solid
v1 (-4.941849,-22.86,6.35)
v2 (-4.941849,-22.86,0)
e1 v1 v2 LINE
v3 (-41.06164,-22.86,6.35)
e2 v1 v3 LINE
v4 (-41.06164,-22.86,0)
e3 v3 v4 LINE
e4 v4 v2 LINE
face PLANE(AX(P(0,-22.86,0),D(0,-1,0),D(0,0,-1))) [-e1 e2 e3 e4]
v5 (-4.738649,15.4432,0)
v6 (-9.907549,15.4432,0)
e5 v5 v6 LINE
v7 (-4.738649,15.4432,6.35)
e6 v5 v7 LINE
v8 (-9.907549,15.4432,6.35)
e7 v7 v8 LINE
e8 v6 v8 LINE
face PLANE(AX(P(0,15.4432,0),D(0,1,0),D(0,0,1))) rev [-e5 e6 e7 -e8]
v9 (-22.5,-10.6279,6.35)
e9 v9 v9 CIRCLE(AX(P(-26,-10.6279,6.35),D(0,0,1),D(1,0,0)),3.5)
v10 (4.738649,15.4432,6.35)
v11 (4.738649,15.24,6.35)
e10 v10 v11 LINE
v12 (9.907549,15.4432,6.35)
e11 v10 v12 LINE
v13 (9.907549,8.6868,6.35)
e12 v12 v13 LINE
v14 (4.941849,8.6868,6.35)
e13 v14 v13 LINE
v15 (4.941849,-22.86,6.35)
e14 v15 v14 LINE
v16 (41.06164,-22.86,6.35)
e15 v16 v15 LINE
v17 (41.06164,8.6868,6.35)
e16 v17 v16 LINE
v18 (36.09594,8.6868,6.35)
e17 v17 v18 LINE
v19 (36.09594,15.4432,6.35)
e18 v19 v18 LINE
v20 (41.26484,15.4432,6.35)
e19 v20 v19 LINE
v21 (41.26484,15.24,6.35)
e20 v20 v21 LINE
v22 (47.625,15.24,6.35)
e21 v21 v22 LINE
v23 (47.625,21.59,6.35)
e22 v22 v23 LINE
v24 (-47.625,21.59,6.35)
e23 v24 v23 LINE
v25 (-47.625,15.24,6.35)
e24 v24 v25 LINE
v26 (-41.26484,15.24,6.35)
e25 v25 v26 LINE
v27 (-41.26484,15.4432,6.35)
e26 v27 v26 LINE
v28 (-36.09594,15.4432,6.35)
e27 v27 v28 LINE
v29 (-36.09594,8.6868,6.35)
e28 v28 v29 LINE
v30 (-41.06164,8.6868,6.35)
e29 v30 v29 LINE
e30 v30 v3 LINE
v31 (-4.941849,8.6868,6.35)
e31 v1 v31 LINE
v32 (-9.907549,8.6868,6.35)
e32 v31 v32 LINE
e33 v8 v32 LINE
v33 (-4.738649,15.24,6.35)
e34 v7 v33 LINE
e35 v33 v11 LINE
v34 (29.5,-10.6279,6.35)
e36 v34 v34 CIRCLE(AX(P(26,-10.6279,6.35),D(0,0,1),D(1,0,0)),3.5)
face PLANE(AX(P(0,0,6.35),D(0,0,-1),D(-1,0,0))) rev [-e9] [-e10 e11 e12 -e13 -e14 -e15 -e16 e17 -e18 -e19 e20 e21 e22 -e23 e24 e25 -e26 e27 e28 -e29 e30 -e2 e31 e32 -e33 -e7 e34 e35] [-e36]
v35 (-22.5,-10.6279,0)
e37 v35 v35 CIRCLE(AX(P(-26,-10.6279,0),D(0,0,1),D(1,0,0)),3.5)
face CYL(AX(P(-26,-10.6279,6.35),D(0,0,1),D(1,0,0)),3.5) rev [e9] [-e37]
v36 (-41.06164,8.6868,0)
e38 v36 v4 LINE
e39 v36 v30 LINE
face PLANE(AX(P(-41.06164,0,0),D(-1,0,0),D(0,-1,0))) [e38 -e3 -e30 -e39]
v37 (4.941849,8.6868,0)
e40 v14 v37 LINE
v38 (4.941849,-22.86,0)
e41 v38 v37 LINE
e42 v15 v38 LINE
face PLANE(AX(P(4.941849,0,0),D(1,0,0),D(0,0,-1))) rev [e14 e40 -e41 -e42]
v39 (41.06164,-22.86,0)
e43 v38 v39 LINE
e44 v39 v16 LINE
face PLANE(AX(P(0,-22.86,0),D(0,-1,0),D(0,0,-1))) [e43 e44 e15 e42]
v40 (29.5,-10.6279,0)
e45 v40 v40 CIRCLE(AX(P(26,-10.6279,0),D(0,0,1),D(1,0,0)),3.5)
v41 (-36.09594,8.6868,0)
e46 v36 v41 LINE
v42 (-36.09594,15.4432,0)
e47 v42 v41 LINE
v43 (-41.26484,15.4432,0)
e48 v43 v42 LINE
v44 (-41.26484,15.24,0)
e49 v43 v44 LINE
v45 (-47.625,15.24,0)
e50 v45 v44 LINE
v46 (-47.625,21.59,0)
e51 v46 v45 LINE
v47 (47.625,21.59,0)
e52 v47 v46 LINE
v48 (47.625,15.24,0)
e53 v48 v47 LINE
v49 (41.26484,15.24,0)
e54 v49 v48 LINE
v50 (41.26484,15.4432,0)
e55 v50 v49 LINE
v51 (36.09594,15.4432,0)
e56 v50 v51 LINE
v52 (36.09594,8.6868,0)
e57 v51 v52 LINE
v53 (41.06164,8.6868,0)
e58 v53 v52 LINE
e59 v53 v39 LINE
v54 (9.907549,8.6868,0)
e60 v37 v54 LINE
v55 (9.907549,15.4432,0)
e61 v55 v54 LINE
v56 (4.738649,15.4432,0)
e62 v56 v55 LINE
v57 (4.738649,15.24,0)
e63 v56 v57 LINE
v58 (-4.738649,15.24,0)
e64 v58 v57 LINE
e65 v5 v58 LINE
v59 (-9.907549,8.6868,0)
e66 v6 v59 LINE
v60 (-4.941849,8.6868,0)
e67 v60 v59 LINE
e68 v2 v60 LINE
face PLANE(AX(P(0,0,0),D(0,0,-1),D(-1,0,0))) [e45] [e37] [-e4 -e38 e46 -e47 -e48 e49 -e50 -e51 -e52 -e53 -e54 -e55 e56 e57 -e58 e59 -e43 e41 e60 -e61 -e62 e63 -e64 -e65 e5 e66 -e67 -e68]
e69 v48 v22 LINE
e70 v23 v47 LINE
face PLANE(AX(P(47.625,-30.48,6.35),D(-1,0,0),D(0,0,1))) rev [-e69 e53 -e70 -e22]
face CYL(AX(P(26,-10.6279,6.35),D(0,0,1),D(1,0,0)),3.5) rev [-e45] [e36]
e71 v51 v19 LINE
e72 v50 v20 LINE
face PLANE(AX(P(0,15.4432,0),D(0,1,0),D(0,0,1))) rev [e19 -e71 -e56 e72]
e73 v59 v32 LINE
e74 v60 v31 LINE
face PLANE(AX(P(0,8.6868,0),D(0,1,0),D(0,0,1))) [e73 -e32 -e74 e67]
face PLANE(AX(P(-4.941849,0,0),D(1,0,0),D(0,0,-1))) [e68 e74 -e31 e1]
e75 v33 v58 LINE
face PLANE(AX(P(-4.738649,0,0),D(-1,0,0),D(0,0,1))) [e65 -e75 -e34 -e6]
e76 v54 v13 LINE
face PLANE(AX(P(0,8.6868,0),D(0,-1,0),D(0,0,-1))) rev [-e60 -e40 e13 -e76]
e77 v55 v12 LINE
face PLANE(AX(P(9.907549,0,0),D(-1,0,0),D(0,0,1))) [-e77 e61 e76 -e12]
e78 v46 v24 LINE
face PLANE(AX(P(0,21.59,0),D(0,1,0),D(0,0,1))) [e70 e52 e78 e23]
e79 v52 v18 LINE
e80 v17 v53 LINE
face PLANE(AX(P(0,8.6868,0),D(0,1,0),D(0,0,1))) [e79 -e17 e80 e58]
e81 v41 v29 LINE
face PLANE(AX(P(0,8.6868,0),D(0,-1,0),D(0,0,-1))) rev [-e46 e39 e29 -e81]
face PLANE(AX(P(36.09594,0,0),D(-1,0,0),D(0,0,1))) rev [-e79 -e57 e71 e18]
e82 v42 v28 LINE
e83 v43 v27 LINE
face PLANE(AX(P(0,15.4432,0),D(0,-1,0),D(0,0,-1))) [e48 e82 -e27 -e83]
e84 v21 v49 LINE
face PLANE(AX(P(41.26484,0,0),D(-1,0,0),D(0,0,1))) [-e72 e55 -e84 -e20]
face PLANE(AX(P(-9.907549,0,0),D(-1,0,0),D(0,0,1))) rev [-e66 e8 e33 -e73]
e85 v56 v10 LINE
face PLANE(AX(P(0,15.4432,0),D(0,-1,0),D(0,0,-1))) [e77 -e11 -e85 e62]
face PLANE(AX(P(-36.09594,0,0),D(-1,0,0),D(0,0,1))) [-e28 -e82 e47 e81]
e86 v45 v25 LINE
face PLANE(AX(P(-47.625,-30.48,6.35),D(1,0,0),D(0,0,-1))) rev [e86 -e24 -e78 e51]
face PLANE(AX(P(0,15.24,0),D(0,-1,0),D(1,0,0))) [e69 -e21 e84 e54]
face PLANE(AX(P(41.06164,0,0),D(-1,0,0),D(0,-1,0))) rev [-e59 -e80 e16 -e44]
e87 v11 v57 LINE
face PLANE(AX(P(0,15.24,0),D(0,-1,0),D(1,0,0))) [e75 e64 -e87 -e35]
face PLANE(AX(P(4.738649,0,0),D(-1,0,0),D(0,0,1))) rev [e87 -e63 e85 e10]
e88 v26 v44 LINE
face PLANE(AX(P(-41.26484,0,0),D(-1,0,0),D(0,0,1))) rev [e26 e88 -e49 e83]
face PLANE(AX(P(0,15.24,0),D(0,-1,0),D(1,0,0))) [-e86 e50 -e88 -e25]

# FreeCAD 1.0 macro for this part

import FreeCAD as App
import Part
import Sketcher

V = App.Vector
Q = App.Units.Quantity

doc = App.newDocument("Part")
body = doc.addObject("PartDesign::Body", "Body")

# Sketch on XY plane
sketch1 = doc.addObject("Sketcher::SketchObject", "Sketch")
body.addObject(sketch1)
sketch1.AttachmentSupport = (doc.XY_Plane, [""])
sketch1.MapMode = "FlatFace"
sketch1.addGeometry([
    Part.LineSegment(V(-48, 30, 0), V(-48, -30, 0)),
    Part.LineSegment(V(-48, -30, 0), V(48, -30, 0)),
    Part.LineSegment(V(48, -30, 0), V(48, 30, 0)),
    Part.LineSegment(V(48, 30, 0), V(-48, 30, 0)),
], False)
sketch1.addConstraint([
    Sketcher.Constraint("Coincident", 0, 2, 1, 1),
    Sketcher.Constraint("Coincident", 1, 2, 2, 1),
    Sketcher.Constraint("Coincident", 2, 2, 3, 1),
    Sketcher.Constraint("Coincident", 3, 2, 0, 1),
    Sketcher.Constraint("Vertical", 0),
    Sketcher.Constraint("Horizontal", 1),
    Sketcher.Constraint("Vertical", 2),
    Sketcher.Constraint("Horizontal", 3),
    Sketcher.Constraint("Symmetric", 0, 2, 2, 2, -1, 1),
    Sketcher.Constraint("DistanceY", 0, 2, 0, 1, Q("2.4 in")),
    Sketcher.Constraint("DistanceX", 1, 1, 1, 2, Q("3.75 in")),
])
pad1 = doc.addObject("PartDesign::Pad", "Pad")
body.addObject(pad1)
pad1.Profile = sketch1
pad1.Length = Q("0.25 in")

# Sketch on XY plane
sketch2 = doc.addObject("Sketcher::SketchObject", "Sketch001")
body.addObject(sketch2)
sketch2.AttachmentSupport = (doc.XY_Plane, [""])
sketch2.MapMode = "FlatFace"
sketch2.AttachmentOffset = App.Placement(V(0, 0, 0.25 * 25.4), App.Rotation())
sketch2.addGeometry([
    Part.LineSegment(V(-48, 15, 0), V(-48, -30, 0)),  # 0
    Part.LineSegment(V(-48, -30, 0), V(-41, -30, 0)),  # 1
    Part.LineSegment(V(-41, -30, 0), V(-41, 15, 0)),  # 2
    Part.LineSegment(V(-41, 15, 0), V(-48, 15, 0)),  # 3
    Part.LineSegment(V(-5, 15, 0), V(-5, -30, 0)),  # 4
    Part.LineSegment(V(-5, -30, 0), V(5, -30, 0)),  # 5
    Part.LineSegment(V(5, -30, 0), V(5, 15, 0)),  # 6
    Part.LineSegment(V(5, 15, 0), V(-5, 15, 0)),  # 7
    Part.LineSegment(V(41, 15, 0), V(41, -30, 0)),  # 8
    Part.LineSegment(V(41, -30, 0), V(48, -30, 0)),  # 9
    Part.LineSegment(V(48, -30, 0), V(48, 15, 0)),  # 10
    Part.LineSegment(V(48, 15, 0), V(41, 15, 0)),  # 11
], False)
sketch2.addConstraint([
    Sketcher.Constraint("Coincident", 0, 2, 1, 1),
    Sketcher.Constraint("Coincident", 1, 2, 2, 1),
    Sketcher.Constraint("Coincident", 2, 2, 3, 1),
    Sketcher.Constraint("Coincident", 3, 2, 0, 1),
    Sketcher.Constraint("Coincident", 4, 2, 5, 1),
    Sketcher.Constraint("Coincident", 5, 2, 6, 1),
    Sketcher.Constraint("Coincident", 6, 2, 7, 1),
    Sketcher.Constraint("Coincident", 7, 2, 4, 1),
    Sketcher.Constraint("Coincident", 8, 2, 9, 1),
    Sketcher.Constraint("Coincident", 9, 2, 10, 1),
    Sketcher.Constraint("Coincident", 10, 2, 11, 1),
    Sketcher.Constraint("Coincident", 11, 2, 8, 1),
    Sketcher.Constraint("Vertical", 0),
    Sketcher.Constraint("Horizontal", 1),
    Sketcher.Constraint("Vertical", 2),
    Sketcher.Constraint("Horizontal", 3),
    Sketcher.Constraint("Vertical", 4),
    Sketcher.Constraint("Horizontal", 5),
    Sketcher.Constraint("Vertical", 6),
    Sketcher.Constraint("Horizontal", 7),
    Sketcher.Constraint("Vertical", 8),
    Sketcher.Constraint("Horizontal", 9),
    Sketcher.Constraint("Vertical", 10),
    Sketcher.Constraint("Horizontal", 11),
    Sketcher.Constraint("Symmetric", 1, 2, 8, 2, -2),
    Sketcher.Constraint("Symmetric", 3, 2, 10, 2, -2),
    Sketcher.Constraint("Horizontal", 1, 2, 4, 2),
    Sketcher.Constraint("Horizontal", 3, 2, 6, 2),
    Sketcher.Constraint("DistanceY", 0, 2, 0, 1, Q("1.8 in")),
    Sketcher.Constraint("DistanceY", 0, 2, -1, 1, Q("1.2 in")),
    Sketcher.Constraint("DistanceX", 1, 1, 1, 2, Q("0.2584 in")),
    Sketcher.Constraint("DistanceX", 0, 2, -1, 1, Q("1.875 in")),
    Sketcher.Constraint("DistanceX", 5, 1, 5, 2, 9.883699),
    Sketcher.Constraint("DistanceX", 4, 2, -1, 1, 4.941849),
])
pocket1 = doc.addObject("PartDesign::Pocket", "Pocket")
body.addObject(pocket1)
pocket1.Profile = sketch2
pocket1.Length = Q("0.25 in")

# Sketch on XY plane
sketch3 = doc.addObject("Sketcher::SketchObject", "Sketch002")
body.addObject(sketch3)
sketch3.AttachmentSupport = (doc.XY_Plane, [""])
sketch3.MapMode = "FlatFace"
sketch3.AttachmentOffset = App.Placement(V(0, 0, 0.25 * 25.4), App.Rotation())
sketch3.addGeometry([
    Part.LineSegment(V(-41, 15, 0), V(-41, 9, 0)),  # 0
    Part.LineSegment(V(-41, 9, 0), V(-36, 9, 0)),  # 1
    Part.LineSegment(V(-36, 9, 0), V(-36, 15, 0)),  # 2
    Part.LineSegment(V(-36, 15, 0), V(-41, 15, 0)),  # 3
    Part.LineSegment(V(-10, 15, 0), V(-10, 9, 0)),  # 4
    Part.LineSegment(V(-10, 9, 0), V(-5, 9, 0)),  # 5
    Part.LineSegment(V(-5, 9, 0), V(-5, 15, 0)),  # 6
    Part.LineSegment(V(-5, 15, 0), V(-10, 15, 0)),  # 7
], False)
sketch3.addConstraint([
    Sketcher.Constraint("Coincident", 0, 2, 1, 1),
    Sketcher.Constraint("Coincident", 1, 2, 2, 1),
    Sketcher.Constraint("Coincident", 2, 2, 3, 1),
    Sketcher.Constraint("Coincident", 3, 2, 0, 1),
    Sketcher.Constraint("Coincident", 4, 2, 5, 1),
    Sketcher.Constraint("Coincident", 5, 2, 6, 1),
    Sketcher.Constraint("Coincident", 6, 2, 7, 1),
    Sketcher.Constraint("Coincident", 7, 2, 4, 1),
    Sketcher.Constraint("Vertical", 0),
    Sketcher.Constraint("Horizontal", 1),
    Sketcher.Constraint("Vertical", 2),
    Sketcher.Constraint("Horizontal", 3),
    Sketcher.Constraint("Vertical", 4),
    Sketcher.Constraint("Horizontal", 5),
    Sketcher.Constraint("Vertical", 6),
    Sketcher.Constraint("Horizontal", 7),
    Sketcher.Constraint("Horizontal", 1, 2, 4, 2),
    Sketcher.Constraint("Horizontal", 3, 2, 6, 2),
    Sketcher.Constraint("Equal", 3, 5),
    Sketcher.Constraint("DistanceY", 0, 2, 0, 1, Q("0.266 in")),
    Sketcher.Constraint("DistanceX", 1, 1, 1, 2, Q("0.2035 in")),
    Sketcher.Constraint("DistanceY", -1, 1, 0, 2, Q("0.342 in")),
    Sketcher.Constraint("DistanceX", 0, 2, -1, 1, Q("1.6246 in")),
    Sketcher.Constraint("DistanceX", 4, 2, -1, 1, 9.907549),
])
pocket2 = doc.addObject("PartDesign::Pocket", "Pocket001")
body.addObject(pocket2)
pocket2.Profile = sketch3
pocket2.Type = "ThroughAll"
doc.recompute()

mirrored = doc.addObject("PartDesign::Mirrored", "Mirrored")
body.addObject(mirrored)
mirrored.Originals = [pocket2]
mirrored.MirrorPlane = (doc.YZ_Plane, [""])
body.Tip = mirrored

# Sketch on XZ plane
sketch4 = doc.addObject("Sketcher::SketchObject", "Sketch003")
body.addObject(sketch4)
sketch4.AttachmentSupport = (doc.XZ_Plane, [""])
sketch4.MapMode = "FlatFace"
sketch4.AttachmentOffset = App.Placement(V(0, 0, -1.2 * 25.4), App.Rotation())
sketch4.addGeometry([
    Part.LineSegment(V(-48, 0, 0), V(-48, 6, 0)),
    Part.LineSegment(V(-48, 6, 0), V(48, 6, 0)),
    Part.LineSegment(V(48, 6, 0), V(48, 0, 0)),
    Part.LineSegment(V(48, 0, 0), V(-48, 0, 0)),
], False)
sketch4.addConstraint([
    Sketcher.Constraint("Coincident", 0, 2, 1, 1),
    Sketcher.Constraint("Coincident", 1, 2, 2, 1),
    Sketcher.Constraint("Coincident", 2, 2, 3, 1),
    Sketcher.Constraint("Coincident", 3, 2, 0, 1),
    Sketcher.Constraint("Vertical", 0),
    Sketcher.Constraint("Horizontal", 1),
    Sketcher.Constraint("Vertical", 2),
    Sketcher.Constraint("Horizontal", 3),
    Sketcher.Constraint("Symmetric", 2, 2, 3, 2, -1, 1),
    Sketcher.Constraint("DistanceX", 1, 1, 1, 2, Q("3.75 in")),
    Sketcher.Constraint("DistanceY", 0, 1, 0, 2, Q("0.25 in")),
])
pocket3 = doc.addObject("PartDesign::Pocket", "Pocket002")
body.addObject(pocket3)
pocket3.Profile = sketch4
pocket3.Length = Q("0.35 in")
pocket3.Reversed = True

# Sketch on XZ plane
sketch5 = doc.addObject("Sketcher::SketchObject", "Sketch004")
body.addObject(sketch5)
sketch5.AttachmentSupport = (doc.XZ_Plane, [""])
sketch5.MapMode = "FlatFace"
sketch5.AttachmentOffset = App.Placement(V(0, 0, 1.2 * 25.4), App.Rotation())
sketch5.addGeometry([
    Part.LineSegment(V(-41, 6, 0), V(-41, 0, 0)),
    Part.LineSegment(V(-41, 0, 0), V(41, 0, 0)),
    Part.LineSegment(V(41, 0, 0), V(41, 6, 0)),
    Part.LineSegment(V(41, 6, 0), V(-41, 6, 0)),
], False)
sketch5.addConstraint([
    Sketcher.Constraint("Coincident", 0, 2, 1, 1),
    Sketcher.Constraint("Coincident", 1, 2, 2, 1),
    Sketcher.Constraint("Coincident", 2, 2, 3, 1),
    Sketcher.Constraint("Coincident", 3, 2, 0, 1),
    Sketcher.Constraint("Vertical", 0),
    Sketcher.Constraint("Horizontal", 1),
    Sketcher.Constraint("Vertical", 2),
    Sketcher.Constraint("Horizontal", 3),
    Sketcher.Constraint("Symmetric", 0, 2, 1, 2, -1, 1),
    Sketcher.Constraint("DistanceY", 0, 2, 0, 1, Q("0.25 in")),
    Sketcher.Constraint("DistanceX", 1, 1, 1, 2, Q("3.2332 in")),
])
pocket4 = doc.addObject("PartDesign::Pocket", "Pocket003")
body.addObject(pocket4)
pocket4.Profile = sketch5
pocket4.Length = Q("0.3 in")

# Sketch on XY plane
sketch6 = doc.addObject("Sketcher::SketchObject", "Sketch005")
body.addObject(sketch6)
sketch6.AttachmentSupport = (doc.XY_Plane, [""])
sketch6.MapMode = "FlatFace"
sketch6.AttachmentOffset = App.Placement(V(0, 0, 0.25 * 25.4), App.Rotation())
sketch6.addGeometry([
    Part.Circle(V(26, -10.6, 0), V(0, 0, 1), 3.5),
    Part.Circle(V(-26, -10.6, 0), V(0, 0, 1), 3.5),
], False)
sketch6.addConstraint([
    Sketcher.Constraint("Equal", 0, 1),
    Sketcher.Constraint("Symmetric", 0, 3, 1, 3, -2),
    Sketcher.Constraint("Diameter", 0, 7.0),
    Sketcher.Constraint("DistanceX", -1, 1, 0, 3, 26.0),
    Sketcher.Constraint("DistanceY", 0, 3, -1, 1, 10.6279),
])
doc.recompute()
hole = doc.addObject("PartDesign::Hole", "Hole")
body.addObject(hole)
hole.Profile = sketch6
hole.ThreadType = "None"
hole.Diameter = 7
hole.DepthType = "ThroughAll"

doc.recompute()
